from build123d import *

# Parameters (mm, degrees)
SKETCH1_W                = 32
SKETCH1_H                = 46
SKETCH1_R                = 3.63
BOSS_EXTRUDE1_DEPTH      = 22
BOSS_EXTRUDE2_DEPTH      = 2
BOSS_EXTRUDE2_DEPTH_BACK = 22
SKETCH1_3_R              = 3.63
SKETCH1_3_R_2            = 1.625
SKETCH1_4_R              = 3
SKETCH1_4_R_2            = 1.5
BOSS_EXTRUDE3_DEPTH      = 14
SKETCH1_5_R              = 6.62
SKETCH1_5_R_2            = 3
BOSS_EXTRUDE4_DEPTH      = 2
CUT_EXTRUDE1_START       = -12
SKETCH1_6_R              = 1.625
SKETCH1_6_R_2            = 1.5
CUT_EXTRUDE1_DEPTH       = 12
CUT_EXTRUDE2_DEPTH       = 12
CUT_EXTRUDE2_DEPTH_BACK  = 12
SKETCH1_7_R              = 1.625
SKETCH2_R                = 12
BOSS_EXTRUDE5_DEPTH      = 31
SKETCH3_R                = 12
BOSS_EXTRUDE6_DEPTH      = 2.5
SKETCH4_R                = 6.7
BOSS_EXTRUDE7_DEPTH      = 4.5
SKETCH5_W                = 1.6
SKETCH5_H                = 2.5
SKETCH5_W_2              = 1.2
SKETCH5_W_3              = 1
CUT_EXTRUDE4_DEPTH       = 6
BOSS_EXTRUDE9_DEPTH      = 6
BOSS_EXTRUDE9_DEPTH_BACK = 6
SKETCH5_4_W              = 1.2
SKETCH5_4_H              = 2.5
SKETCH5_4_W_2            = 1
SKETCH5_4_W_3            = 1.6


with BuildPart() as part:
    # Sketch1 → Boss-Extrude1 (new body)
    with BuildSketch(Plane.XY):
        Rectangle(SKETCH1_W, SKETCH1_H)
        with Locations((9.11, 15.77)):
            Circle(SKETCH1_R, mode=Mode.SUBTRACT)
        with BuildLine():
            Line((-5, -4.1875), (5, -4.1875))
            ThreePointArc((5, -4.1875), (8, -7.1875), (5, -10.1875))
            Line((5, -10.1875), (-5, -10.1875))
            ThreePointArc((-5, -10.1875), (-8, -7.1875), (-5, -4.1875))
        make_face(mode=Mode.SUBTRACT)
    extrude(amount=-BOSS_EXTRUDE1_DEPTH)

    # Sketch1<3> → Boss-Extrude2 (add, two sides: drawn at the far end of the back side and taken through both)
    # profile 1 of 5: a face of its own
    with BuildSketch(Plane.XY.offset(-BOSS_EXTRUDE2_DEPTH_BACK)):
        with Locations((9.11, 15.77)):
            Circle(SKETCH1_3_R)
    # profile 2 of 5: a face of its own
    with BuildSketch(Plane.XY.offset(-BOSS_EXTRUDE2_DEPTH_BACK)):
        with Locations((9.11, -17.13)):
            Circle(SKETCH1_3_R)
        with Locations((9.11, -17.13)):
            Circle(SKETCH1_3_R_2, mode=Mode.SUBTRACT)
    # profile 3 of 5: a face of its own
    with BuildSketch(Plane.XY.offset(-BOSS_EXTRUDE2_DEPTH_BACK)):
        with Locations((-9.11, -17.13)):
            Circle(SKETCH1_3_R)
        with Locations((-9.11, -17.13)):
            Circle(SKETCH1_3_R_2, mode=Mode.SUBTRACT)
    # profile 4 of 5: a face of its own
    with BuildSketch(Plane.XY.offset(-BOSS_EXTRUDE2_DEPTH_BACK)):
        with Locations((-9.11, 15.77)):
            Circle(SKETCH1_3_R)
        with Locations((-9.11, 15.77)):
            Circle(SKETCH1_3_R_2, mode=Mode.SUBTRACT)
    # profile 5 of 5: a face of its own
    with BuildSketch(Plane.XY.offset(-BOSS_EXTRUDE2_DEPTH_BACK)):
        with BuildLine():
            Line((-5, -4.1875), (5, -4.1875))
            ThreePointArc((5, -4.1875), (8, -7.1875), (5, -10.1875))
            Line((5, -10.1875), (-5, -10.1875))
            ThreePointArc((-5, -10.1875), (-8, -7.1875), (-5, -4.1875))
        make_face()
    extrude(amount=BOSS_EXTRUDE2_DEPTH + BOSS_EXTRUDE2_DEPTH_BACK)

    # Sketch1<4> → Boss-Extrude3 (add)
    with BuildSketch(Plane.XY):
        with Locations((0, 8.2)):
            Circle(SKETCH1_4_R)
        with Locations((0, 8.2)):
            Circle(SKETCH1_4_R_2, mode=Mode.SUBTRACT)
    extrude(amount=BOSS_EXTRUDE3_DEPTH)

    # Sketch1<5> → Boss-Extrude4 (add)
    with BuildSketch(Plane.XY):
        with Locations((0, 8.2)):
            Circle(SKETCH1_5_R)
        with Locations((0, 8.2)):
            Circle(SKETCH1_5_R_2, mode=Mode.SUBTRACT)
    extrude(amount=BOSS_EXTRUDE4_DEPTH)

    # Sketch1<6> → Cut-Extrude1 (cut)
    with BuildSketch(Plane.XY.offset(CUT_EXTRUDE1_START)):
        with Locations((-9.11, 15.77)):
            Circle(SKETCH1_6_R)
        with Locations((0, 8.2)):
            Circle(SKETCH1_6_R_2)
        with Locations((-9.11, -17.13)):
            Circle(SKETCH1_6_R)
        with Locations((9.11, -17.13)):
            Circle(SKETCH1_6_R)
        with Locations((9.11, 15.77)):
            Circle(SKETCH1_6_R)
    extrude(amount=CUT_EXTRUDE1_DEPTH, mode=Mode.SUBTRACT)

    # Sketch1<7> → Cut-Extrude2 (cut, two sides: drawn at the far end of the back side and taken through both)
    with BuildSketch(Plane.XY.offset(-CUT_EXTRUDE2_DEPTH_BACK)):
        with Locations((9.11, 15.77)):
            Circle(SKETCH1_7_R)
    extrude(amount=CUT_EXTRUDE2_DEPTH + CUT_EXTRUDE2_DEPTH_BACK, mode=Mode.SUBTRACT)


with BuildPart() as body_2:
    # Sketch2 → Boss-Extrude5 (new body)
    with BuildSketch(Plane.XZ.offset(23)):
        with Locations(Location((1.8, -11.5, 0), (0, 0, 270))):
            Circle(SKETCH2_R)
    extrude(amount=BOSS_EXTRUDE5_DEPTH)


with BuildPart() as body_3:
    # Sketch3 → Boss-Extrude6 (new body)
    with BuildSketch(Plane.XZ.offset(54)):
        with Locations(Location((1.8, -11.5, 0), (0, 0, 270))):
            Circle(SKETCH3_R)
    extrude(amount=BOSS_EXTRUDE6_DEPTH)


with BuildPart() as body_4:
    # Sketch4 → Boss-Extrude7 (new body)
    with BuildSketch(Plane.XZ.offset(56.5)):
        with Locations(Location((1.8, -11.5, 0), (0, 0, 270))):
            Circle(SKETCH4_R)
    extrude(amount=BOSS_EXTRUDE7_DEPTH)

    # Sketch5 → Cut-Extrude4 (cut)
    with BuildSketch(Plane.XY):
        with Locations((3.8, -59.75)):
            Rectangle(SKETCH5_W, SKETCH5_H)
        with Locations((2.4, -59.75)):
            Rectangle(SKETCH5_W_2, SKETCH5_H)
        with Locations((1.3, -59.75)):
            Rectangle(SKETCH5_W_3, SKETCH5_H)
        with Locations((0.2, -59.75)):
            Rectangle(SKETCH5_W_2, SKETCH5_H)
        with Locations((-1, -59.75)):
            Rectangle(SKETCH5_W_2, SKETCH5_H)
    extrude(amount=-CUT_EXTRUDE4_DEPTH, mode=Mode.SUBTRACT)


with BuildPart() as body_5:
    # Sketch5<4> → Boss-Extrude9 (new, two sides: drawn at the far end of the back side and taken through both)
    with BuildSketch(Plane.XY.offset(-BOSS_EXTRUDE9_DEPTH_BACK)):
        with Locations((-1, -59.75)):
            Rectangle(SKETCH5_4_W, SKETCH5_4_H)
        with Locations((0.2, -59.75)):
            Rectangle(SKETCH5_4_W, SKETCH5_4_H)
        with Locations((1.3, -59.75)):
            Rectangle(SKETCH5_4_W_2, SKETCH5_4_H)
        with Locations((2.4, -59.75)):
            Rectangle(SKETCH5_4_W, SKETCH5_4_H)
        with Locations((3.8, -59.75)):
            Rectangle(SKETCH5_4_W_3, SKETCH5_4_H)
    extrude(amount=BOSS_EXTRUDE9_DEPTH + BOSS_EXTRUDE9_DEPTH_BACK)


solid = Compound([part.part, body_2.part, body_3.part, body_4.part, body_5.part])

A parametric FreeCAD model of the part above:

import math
import FreeCAD as App
import Part
import Sketcher

V = App.Vector
Q = App.Units.Quantity

doc = App.newDocument("Part")
params = doc.addObject("Spreadsheet::Sheet", "Params")
for row, (alias, value) in enumerate([
    ("sketch1_radius", "3 mm"),
    ("sketch1_diameter", "7.26 mm"),
    ("sketch1_width", "32 mm"),
    ("sketch1_width2", "10 mm"),
    ("sketch1_height", "46 mm"),
    ("pad1_length", "22 mm"),
    ("sketch2_radius", "3 mm"),
    ("sketch2_diameter", "7.26 mm"),
    ("sketch2_diameter2", "3.25 mm"),
    ("sketch2_width", "10 mm"),
    ("pad2_length", "2 mm"),
    ("pad2_length2", "22 mm"),
    ("sketch3_diameter", "6 mm"),
    ("sketch3_diameter2", "3 mm"),
    ("pad3_length", "14 mm"),
    ("sketch4_diameter", "6 mm"),
    ("sketch4_diameter2", "13.24 mm"),
    ("pad4_length", "2 mm"),
    ("sketch5_diameter", "3 mm"),
    ("sketch5_diameter2", "3.25 mm"),
    ("pocket1_length", "12 mm"),
    ("sketch6_diameter", "3.25 mm"),
    ("pocket2_length", "12 mm"),
    ("pocket2_length2", "12 mm"),
    ("sketch7_diameter", "24 mm"),
    ("pad5_length", "31 mm"),
    ("sketch8_diameter", "24 mm"),
    ("pad6_length", "2.5 mm"),
    ("sketch9_diameter", "13.4 mm"),
    ("pad7_length", "4.5 mm"),
    ("sketch10_width", "6.2 mm"),
    ("sketch10_height", "2.5 mm"),
    ("pocket3_length", "6 mm"),
    ("sketch11_width", "6.2 mm"),
    ("sketch11_height", "2.5 mm"),
    ("pad8_length", "6 mm"),
    ("pad8_length2", "6 mm"),
], start=1):
    params.set(f"A{row}", alias)
    params.set(f"B{row}", "=" + value)
    params.setAlias(f"B{row}", alias)

body = doc.addObject("PartDesign::Body", "Body")

# Sketch on XY plane
sketch1 = body.newObject("Sketcher::SketchObject", "Sketch")
sketch1.AttachmentSupport = (doc.getObject("XY_Plane"), [""])
sketch1.MapMode = "FlatFace"
sketch1.addGeometry(Part.LineSegment(V(-16, 23, 0), V(-16, -23, 0)), False)
sketch1.addGeometry(Part.LineSegment(V(-16, -23, 0), V(16, -23, 0)), False)
sketch1.addGeometry(Part.LineSegment(V(16, -23, 0), V(16, 23, 0)), False)
sketch1.addGeometry(Part.LineSegment(V(16, 23, 0), V(-16, 23, 0)), False)
sketch1.addGeometry(Part.ArcOfCircle(Part.Circle(V(-5, -7.2, 0), V(0, 0, 1), 3), math.radians(90), math.radians(270)), False)
sketch1.addGeometry(Part.LineSegment(V(-5, -4.2, 0), V(5, -4.2, 0)), False)
sketch1.addGeometry(Part.ArcOfCircle(Part.Circle(V(5, -7.2, 0), V(0, 0, 1), 3), math.radians(-90), math.radians(90)), False)
sketch1.addGeometry(Part.LineSegment(V(5, -10.2, 0), V(-5, -10.2, 0)), False)
sketch1.addGeometry(Part.Circle(V(9.1, 15.8, 0), V(0, 0, 1), 3.6), False)
sketch1.addConstraint(Sketcher.Constraint("Coincident", 0, 2, 1, 1))
sketch1.addConstraint(Sketcher.Constraint("Coincident", 1, 2, 2, 1))
sketch1.addConstraint(Sketcher.Constraint("Coincident", 2, 2, 3, 1))
sketch1.addConstraint(Sketcher.Constraint("Coincident", 3, 2, 0, 1))
sketch1.addConstraint(Sketcher.Constraint("Tangent", 4, 1, 5, 1))
sketch1.addConstraint(Sketcher.Constraint("Tangent", 5, 2, 6, 2))
sketch1.addConstraint(Sketcher.Constraint("Tangent", 6, 1, 7, 1))
sketch1.addConstraint(Sketcher.Constraint("Tangent", 7, 2, 4, 2))
sketch1.addConstraint(Sketcher.Constraint("Vertical", 0))
sketch1.addConstraint(Sketcher.Constraint("Horizontal", 1))
sketch1.addConstraint(Sketcher.Constraint("Vertical", 2))
sketch1.addConstraint(Sketcher.Constraint("Horizontal", 3))
sketch1.addConstraint(Sketcher.Constraint("Horizontal", 5))
sketch1.addConstraint(Sketcher.Constraint("Horizontal", 7))
sketch1.addConstraint(Sketcher.Constraint("Symmetric", 0, 2, 2, 2, -1, 1))
sketch1.addConstraint(Sketcher.Constraint("Radius", 4, Q("3 mm")))
sketch1.addConstraint(Sketcher.Constraint("Diameter", 8, Q("7.26 mm")))
sketch1.addConstraint(Sketcher.Constraint("DistanceX", 1, 1, 1, 2, Q("32 mm")))
sketch1.addConstraint(Sketcher.Constraint("DistanceX", 5, 1, 5, 2, Q("10 mm")))
sketch1.addConstraint(Sketcher.Constraint("DistanceY", 0, 2, 0, 1, Q("46 mm")))
sketch1.addConstraint(Sketcher.Constraint("DistanceX", 4, 3, -1, 1, Q("5 mm")))
sketch1.addConstraint(Sketcher.Constraint("DistanceX", -1, 1, 8, 3, Q("9.11 mm")))
sketch1.addConstraint(Sketcher.Constraint("DistanceY", -1, 1, 8, 3, Q("15.77 mm")))
sketch1.addConstraint(Sketcher.Constraint("DistanceY", 4, 3, -1, 1, Q("7.1875 mm")))
sketch1.setExpression("Constraints[15]", "Params.sketch1_radius")
sketch1.setExpression("Constraints[16]", "Params.sketch1_diameter")
sketch1.setExpression("Constraints[17]", "Params.sketch1_width")
sketch1.setExpression("Constraints[18]", "Params.sketch1_width2")
sketch1.setExpression("Constraints[19]", "Params.sketch1_height")
pad1 = body.newObject("PartDesign::Pad", "Pad")
pad1.Profile = sketch1
pad1.setExpression("Length", "Params.pad1_length")
pad1.Reversed = True

# Sketch on XY plane
sketch2 = body.newObject("Sketcher::SketchObject", "Sketch001")
sketch2.AttachmentSupport = (doc.getObject("XY_Plane"), [""])
sketch2.MapMode = "FlatFace"
sketch2.addGeometry(Part.Circle(V(9.1, 15.8, 0), V(0, 0, 1), 3.6), False)
sketch2.addGeometry(Part.Circle(V(9.1, -17.1, 0), V(0, 0, 1), 3.6), False)
sketch2.addGeometry(Part.Circle(V(9.1, -17.1, 0), V(0, 0, 1), 1.6), False)
sketch2.addGeometry(Part.Circle(V(-9.1, -17.1, 0), V(0, 0, 1), 3.6), False)
sketch2.addGeometry(Part.Circle(V(-9.1, -17.1, 0), V(0, 0, 1), 1.6), False)
sketch2.addGeometry(Part.Circle(V(-9.1, 15.8, 0), V(0, 0, 1), 3.6), False)
sketch2.addGeometry(Part.Circle(V(-9.1, 15.8, 0), V(0, 0, 1), 1.6), False)
sketch2.addGeometry(Part.LineSegment(V(5, -4.2, 0), V(-5, -4.2, 0)), False)
sketch2.addGeometry(Part.ArcOfCircle(Part.Circle(V(-5, -7.2, 0), V(0, 0, 1), 3), math.radians(90), math.radians(270)), False)
sketch2.addGeometry(Part.LineSegment(V(-5, -10.2, 0), V(5, -10.2, 0)), False)
sketch2.addGeometry(Part.ArcOfCircle(Part.Circle(V(5, -7.2, 0), V(0, 0, 1), 3), math.radians(-90), math.radians(90)), False)
sketch2.addConstraint(Sketcher.Constraint("Tangent", 7, 2, 8, 1))
sketch2.addConstraint(Sketcher.Constraint("Tangent", 8, 2, 9, 1))
sketch2.addConstraint(Sketcher.Constraint("Tangent", 9, 2, 10, 1))
sketch2.addConstraint(Sketcher.Constraint("Tangent", 10, 2, 7, 1))
sketch2.addConstraint(Sketcher.Constraint("Horizontal", 7))
sketch2.addConstraint(Sketcher.Constraint("Horizontal", 9))
sketch2.addConstraint(Sketcher.Constraint("Coincident", 2, 3, 1, 3))
sketch2.addConstraint(Sketcher.Constraint("Coincident", 4, 3, 3, 3))
sketch2.addConstraint(Sketcher.Constraint("Coincident", 6, 3, 5, 3))
sketch2.addConstraint(Sketcher.Constraint("Equal", 0, 1))
sketch2.addConstraint(Sketcher.Constraint("Equal", 1, 3))
sketch2.addConstraint(Sketcher.Constraint("Equal", 2, 4))
sketch2.addConstraint(Sketcher.Constraint("Equal", 3, 5))
sketch2.addConstraint(Sketcher.Constraint("Equal", 4, 6))
sketch2.addConstraint(Sketcher.Constraint("Symmetric", 1, 3, 3, 3, -2))
sketch2.addConstraint(Sketcher.Constraint("Symmetric", 0, 3, 5, 3, -2))
sketch2.addConstraint(Sketcher.Constraint("Vertical", 0, 3, 1, 3))
sketch2.addConstraint(Sketcher.Constraint("Radius", 8, Q("3 mm")))
sketch2.addConstraint(Sketcher.Constraint("Diameter", 0, Q("7.26 mm")))
sketch2.addConstraint(Sketcher.Constraint("Diameter", 2, Q("3.25 mm")))
sketch2.addConstraint(Sketcher.Constraint("DistanceX", 7, 2, 7, 1, Q("10 mm")))
sketch2.addConstraint(Sketcher.Constraint("DistanceX", 8, 3, -1, 1, Q("5 mm")))
sketch2.addConstraint(Sketcher.Constraint("DistanceY", 1, 3, 0, 3, Q("32.9 mm")))
sketch2.addConstraint(Sketcher.Constraint("DistanceX", -1, 1, 0, 3, Q("9.11 mm")))
sketch2.addConstraint(Sketcher.Constraint("DistanceY", -1, 1, 0, 3, Q("15.77 mm")))
sketch2.addConstraint(Sketcher.Constraint("DistanceY", 8, 3, -1, 1, Q("7.1875 mm")))
sketch2.setExpression("Constraints[17]", "Params.sketch2_radius")
sketch2.setExpression("Constraints[18]", "Params.sketch2_diameter")
sketch2.setExpression("Constraints[19]", "Params.sketch2_diameter2")
sketch2.setExpression("Constraints[20]", "Params.sketch2_width")
pad2 = body.newObject("PartDesign::Pad", "Pad001")
pad2.Profile = sketch2
pad2.Type = "TwoLengths"
pad2.setExpression("Length", "Params.pad2_length")
pad2.setExpression("Length2", "Params.pad2_length2")

# Sketch on XY plane
sketch3 = body.newObject("Sketcher::SketchObject", "Sketch002")
sketch3.AttachmentSupport = (doc.getObject("XY_Plane"), [""])
sketch3.MapMode = "FlatFace"
sketch3.addGeometry(Part.Circle(V(0, 8.2, 0), V(0, 0, 1), 3), False)
sketch3.addGeometry(Part.Circle(V(0, 8.2, 0), V(0, 0, 1), 1.5), False)
sketch3.addConstraint(Sketcher.Constraint("Coincident", 1, 3, 0, 3))
sketch3.addConstraint(Sketcher.Constraint("PointOnObject", 0, 3, -2))
sketch3.addConstraint(Sketcher.Constraint("Diameter", 0, Q("6 mm")))
sketch3.addConstraint(Sketcher.Constraint("Diameter", 1, Q("3 mm")))
sketch3.addConstraint(Sketcher.Constraint("DistanceY", -1, 1, 0, 3, Q("8.2 mm")))
sketch3.setExpression("Constraints[2]", "Params.sketch3_diameter")
sketch3.setExpression("Constraints[3]", "Params.sketch3_diameter2")
pad3 = body.newObject("PartDesign::Pad", "Pad002")
pad3.Profile = sketch3
pad3.setExpression("Length", "Params.pad3_length")

# Sketch on XY plane
sketch4 = body.newObject("Sketcher::SketchObject", "Sketch003")
sketch4.AttachmentSupport = (doc.getObject("XY_Plane"), [""])
sketch4.MapMode = "FlatFace"
sketch4.addGeometry(Part.Circle(V(0, 8.2, 0), V(0, 0, 1), 6.6), False)
sketch4.addGeometry(Part.Circle(V(0, 8.2, 0), V(0, 0, 1), 3), False)
sketch4.addConstraint(Sketcher.Constraint("Coincident", 1, 3, 0, 3))
sketch4.addConstraint(Sketcher.Constraint("PointOnObject", 0, 3, -2))
sketch4.addConstraint(Sketcher.Constraint("Diameter", 1, Q("6 mm")))
sketch4.addConstraint(Sketcher.Constraint("Diameter", 0, Q("13.24 mm")))
sketch4.addConstraint(Sketcher.Constraint("DistanceY", -1, 1, 0, 3, Q("8.2 mm")))
sketch4.setExpression("Constraints[2]", "Params.sketch4_diameter")
sketch4.setExpression("Constraints[3]", "Params.sketch4_diameter2")
pad4 = body.newObject("PartDesign::Pad", "Pad003")
pad4.Profile = sketch4
pad4.setExpression("Length", "Params.pad4_length")

# Sketch on XY plane
sketch5 = body.newObject("Sketcher::SketchObject", "Sketch004")
sketch5.AttachmentSupport = (doc.getObject("XY_Plane"), [""])
sketch5.MapMode = "FlatFace"
sketch5.AttachmentOffset = App.Placement(V(0, 0, -12), App.Rotation())
sketch5.addGeometry(Part.Circle(V(-9.1, 15.8, 0), V(0, 0, 1), 1.6), False)
sketch5.addGeometry(Part.Circle(V(0, 8.2, 0), V(0, 0, 1), 1.5), False)
sketch5.addGeometry(Part.Circle(V(-9.1, -17.1, 0), V(0, 0, 1), 1.6), False)
sketch5.addGeometry(Part.Circle(V(9.1, -17.1, 0), V(0, 0, 1), 1.6), False)
sketch5.addGeometry(Part.Circle(V(9.1, 15.8, 0), V(0, 0, 1), 1.6), False)
sketch5.addConstraint(Sketcher.Constraint("Equal", 0, 2))
sketch5.addConstraint(Sketcher.Constraint("Equal", 2, 3))
sketch5.addConstraint(Sketcher.Constraint("Equal", 3, 4))
sketch5.addConstraint(Sketcher.Constraint("Symmetric", 2, 3, 3, 3, -2))
sketch5.addConstraint(Sketcher.Constraint("Symmetric", 0, 3, 4, 3, -2))
sketch5.addConstraint(Sketcher.Constraint("PointOnObject", 1, 3, -2))
sketch5.addConstraint(Sketcher.Constraint("Vertical", 0, 3, 2, 3))
sketch5.addConstraint(Sketcher.Constraint("Diameter", 1, Q("3 mm")))
sketch5.addConstraint(Sketcher.Constraint("Diameter", 0, Q("3.25 mm")))
sketch5.addConstraint(Sketcher.Constraint("DistanceY", -1, 1, 1, 3, Q("8.2 mm")))
sketch5.addConstraint(Sketcher.Constraint("DistanceY", 2, 3, 0, 3, Q("32.9 mm")))
sketch5.addConstraint(Sketcher.Constraint("DistanceX", 0, 3, -1, 1, Q("9.11 mm")))
sketch5.addConstraint(Sketcher.Constraint("DistanceY", -1, 1, 0, 3, Q("15.77 mm")))
sketch5.setExpression("Constraints[7]", "Params.sketch5_diameter")
sketch5.setExpression("Constraints[8]", "Params.sketch5_diameter2")
pocket1 = body.newObject("PartDesign::Pocket", "Pocket")
pocket1.Profile = sketch5
pocket1.setExpression("Length", "Params.pocket1_length")
pocket1.Reversed = True

# Sketch on XY plane
sketch6 = body.newObject("Sketcher::SketchObject", "Sketch005")
sketch6.AttachmentSupport = (doc.getObject("XY_Plane"), [""])
sketch6.MapMode = "FlatFace"
sketch6.addGeometry(Part.Circle(V(9.1, 15.8, 0), V(0, 0, 1), 1.6), False)
sketch6.addConstraint(Sketcher.Constraint("Diameter", 0, Q("3.25 mm")))
sketch6.addConstraint(Sketcher.Constraint("DistanceX", -1, 1, 0, 3, Q("9.11 mm")))
sketch6.addConstraint(Sketcher.Constraint("DistanceY", -1, 1, 0, 3, Q("15.77 mm")))
sketch6.setExpression("Constraints[0]", "Params.sketch6_diameter")
pocket2 = body.newObject("PartDesign::Pocket", "Pocket001")
pocket2.Profile = sketch6
pocket2.Type = "TwoLengths"
pocket2.setExpression("Length", "Params.pocket2_length")
pocket2.setExpression("Length2", "Params.pocket2_length2")
pocket2.Reversed = True
body2 = doc.addObject("PartDesign::Body", "Body001")

# Sketch on XZ plane
sketch7 = body2.newObject("Sketcher::SketchObject", "Sketch006")
sketch7.AttachmentSupport = (doc.getObject("XZ_Plane001"), [""])
sketch7.MapMode = "FlatFace"
sketch7.AttachmentOffset = App.Placement(V(0, 0, 23), App.Rotation())
sketch7.addGeometry(Part.Circle(V(2, -12, 0), V(0, 0, 1), 12), False)
sketch7.addConstraint(Sketcher.Constraint("Diameter", 0, Q("24 mm")))
sketch7.addConstraint(Sketcher.Constraint("DistanceX", -1, 1, 0, 3, Q("1.8 mm")))
sketch7.addConstraint(Sketcher.Constraint("DistanceY", 0, 3, -1, 1, Q("11.5 mm")))
sketch7.setExpression("Constraints[0]", "Params.sketch7_diameter")
pad5 = body2.newObject("PartDesign::Pad", "Pad004")
pad5.Profile = sketch7
pad5.setExpression("Length", "Params.pad5_length")
body3 = doc.addObject("PartDesign::Body", "Body002")

# Sketch on XZ plane
sketch8 = body3.newObject("Sketcher::SketchObject", "Sketch007")
sketch8.AttachmentSupport = (doc.getObject("XZ_Plane002"), [""])
sketch8.MapMode = "FlatFace"
sketch8.AttachmentOffset = App.Placement(V(0, 0, 54), App.Rotation())
sketch8.addGeometry(Part.Circle(V(2, -12, 0), V(0, 0, 1), 12), False)
sketch8.addConstraint(Sketcher.Constraint("Diameter", 0, Q("24 mm")))
sketch8.addConstraint(Sketcher.Constraint("DistanceX", -1, 1, 0, 3, Q("1.8 mm")))
sketch8.addConstraint(Sketcher.Constraint("DistanceY", 0, 3, -1, 1, Q("11.5 mm")))
sketch8.setExpression("Constraints[0]", "Params.sketch8_diameter")
pad6 = body3.newObject("PartDesign::Pad", "Pad005")
pad6.Profile = sketch8
pad6.setExpression("Length", "Params.pad6_length")
body4 = doc.addObject("PartDesign::Body", "Body003")

# Sketch on XZ plane
sketch9 = body4.newObject("Sketcher::SketchObject", "Sketch008")
sketch9.AttachmentSupport = (doc.getObject("XZ_Plane003"), [""])
sketch9.MapMode = "FlatFace"
sketch9.AttachmentOffset = App.Placement(V(0, 0, 56.5), App.Rotation())
sketch9.addGeometry(Part.Circle(V(2, -12, 0), V(0, 0, 1), 7), False)
sketch9.addConstraint(Sketcher.Constraint("Diameter", 0, Q("13.4 mm")))
sketch9.addConstraint(Sketcher.Constraint("DistanceX", -1, 1, 0, 3, Q("1.8 mm")))
sketch9.addConstraint(Sketcher.Constraint("DistanceY", 0, 3, -1, 1, Q("11.5 mm")))
sketch9.setExpression("Constraints[0]", "Params.sketch9_diameter")
pad7 = body4.newObject("PartDesign::Pad", "Pad006")
pad7.Profile = sketch9
pad7.setExpression("Length", "Params.pad7_length")

# Sketch on XY plane
sketch10 = body4.newObject("Sketcher::SketchObject", "Sketch009")
sketch10.AttachmentSupport = (doc.getObject("XY_Plane003"), [""])
sketch10.MapMode = "FlatFace"
sketch10.addGeometry(Part.LineSegment(V(4.6, -61, 0), V(4.6, -58.5, 0)), False)
sketch10.addGeometry(Part.LineSegment(V(4.6, -58.5, 0), V(-1.6, -58.5, 0)), False)
sketch10.addGeometry(Part.LineSegment(V(-1.6, -58.5, 0), V(-1.6, -61, 0)), False)
sketch10.addGeometry(Part.LineSegment(V(-1.6, -61, 0), V(4.6, -61, 0)), False)
sketch10.addConstraint(Sketcher.Constraint("Coincident", 0, 2, 1, 1))
sketch10.addConstraint(Sketcher.Constraint("Coincident", 1, 2, 2, 1))
sketch10.addConstraint(Sketcher.Constraint("Coincident", 2, 2, 3, 1))
sketch10.addConstraint(Sketcher.Constraint("Coincident", 3, 2, 0, 1))
sketch10.addConstraint(Sketcher.Constraint("Vertical", 0))
sketch10.addConstraint(Sketcher.Constraint("Horizontal", 1))
sketch10.addConstraint(Sketcher.Constraint("Vertical", 2))
sketch10.addConstraint(Sketcher.Constraint("Horizontal", 3))
sketch10.addConstraint(Sketcher.Constraint("DistanceX", 1, 2, 1, 1, Q("6.2 mm")))
sketch10.addConstraint(Sketcher.Constraint("DistanceY", 0, 1, 0, 2, Q("2.5 mm")))
sketch10.addConstraint(Sketcher.Constraint("DistanceY", 2, 2, -1, 1, Q("61 mm")))
sketch10.addConstraint(Sketcher.Constraint("DistanceX", -1, 1, 0, 2, Q("4.6 mm")))
sketch10.setExpression("Constraints[8]", "Params.sketch10_width")
sketch10.setExpression("Constraints[9]", "Params.sketch10_height")
pocket3 = body4.newObject("PartDesign::Pocket", "Pocket002")
pocket3.Profile = sketch10
pocket3.setExpression("Length", "Params.pocket3_length")
body5 = doc.addObject("PartDesign::Body", "Body004")

# Sketch on XY plane
sketch11 = body5.newObject("Sketcher::SketchObject", "Sketch010")
sketch11.AttachmentSupport = (doc.getObject("XY_Plane004"), [""])
sketch11.MapMode = "FlatFace"
sketch11.addGeometry(Part.LineSegment(V(-1.6, -58.5, 0), V(-1.6, -61, 0)), False)
sketch11.addGeometry(Part.LineSegment(V(-1.6, -61, 0), V(4.6, -61, 0)), False)
sketch11.addGeometry(Part.LineSegment(V(4.6, -61, 0), V(4.6, -58.5, 0)), False)
sketch11.addGeometry(Part.LineSegment(V(4.6, -58.5, 0), V(-1.6, -58.5, 0)), False)
sketch11.addConstraint(Sketcher.Constraint("Coincident", 0, 2, 1, 1))
sketch11.addConstraint(Sketcher.Constraint("Coincident", 1, 2, 2, 1))
sketch11.addConstraint(Sketcher.Constraint("Coincident", 2, 2, 3, 1))
sketch11.addConstraint(Sketcher.Constraint("Coincident", 3, 2, 0, 1))
sketch11.addConstraint(Sketcher.Constraint("Vertical", 0))
sketch11.addConstraint(Sketcher.Constraint("Horizontal", 1))
sketch11.addConstraint(Sketcher.Constraint("Vertical", 2))
sketch11.addConstraint(Sketcher.Constraint("Horizontal", 3))
sketch11.addConstraint(Sketcher.Constraint("DistanceX", 1, 1, 1, 2, Q("6.2 mm")))
sketch11.addConstraint(Sketcher.Constraint("DistanceY", 0, 2, 0, 1, Q("2.5 mm")))
sketch11.addConstraint(Sketcher.Constraint("DistanceY", 0, 2, -1, 1, Q("61 mm")))
sketch11.addConstraint(Sketcher.Constraint("DistanceX", 0, 2, -1, 1, Q("1.6 mm")))
sketch11.setExpression("Constraints[8]", "Params.sketch11_width")
sketch11.setExpression("Constraints[9]", "Params.sketch11_height")
pad8 = body5.newObject("PartDesign::Pad", "Pad007")
pad8.Profile = sketch11
pad8.Type = "TwoLengths"
pad8.setExpression("Length", "Params.pad8_length")
pad8.setExpression("Length2", "Params.pad8_length2")

doc.recompute()
